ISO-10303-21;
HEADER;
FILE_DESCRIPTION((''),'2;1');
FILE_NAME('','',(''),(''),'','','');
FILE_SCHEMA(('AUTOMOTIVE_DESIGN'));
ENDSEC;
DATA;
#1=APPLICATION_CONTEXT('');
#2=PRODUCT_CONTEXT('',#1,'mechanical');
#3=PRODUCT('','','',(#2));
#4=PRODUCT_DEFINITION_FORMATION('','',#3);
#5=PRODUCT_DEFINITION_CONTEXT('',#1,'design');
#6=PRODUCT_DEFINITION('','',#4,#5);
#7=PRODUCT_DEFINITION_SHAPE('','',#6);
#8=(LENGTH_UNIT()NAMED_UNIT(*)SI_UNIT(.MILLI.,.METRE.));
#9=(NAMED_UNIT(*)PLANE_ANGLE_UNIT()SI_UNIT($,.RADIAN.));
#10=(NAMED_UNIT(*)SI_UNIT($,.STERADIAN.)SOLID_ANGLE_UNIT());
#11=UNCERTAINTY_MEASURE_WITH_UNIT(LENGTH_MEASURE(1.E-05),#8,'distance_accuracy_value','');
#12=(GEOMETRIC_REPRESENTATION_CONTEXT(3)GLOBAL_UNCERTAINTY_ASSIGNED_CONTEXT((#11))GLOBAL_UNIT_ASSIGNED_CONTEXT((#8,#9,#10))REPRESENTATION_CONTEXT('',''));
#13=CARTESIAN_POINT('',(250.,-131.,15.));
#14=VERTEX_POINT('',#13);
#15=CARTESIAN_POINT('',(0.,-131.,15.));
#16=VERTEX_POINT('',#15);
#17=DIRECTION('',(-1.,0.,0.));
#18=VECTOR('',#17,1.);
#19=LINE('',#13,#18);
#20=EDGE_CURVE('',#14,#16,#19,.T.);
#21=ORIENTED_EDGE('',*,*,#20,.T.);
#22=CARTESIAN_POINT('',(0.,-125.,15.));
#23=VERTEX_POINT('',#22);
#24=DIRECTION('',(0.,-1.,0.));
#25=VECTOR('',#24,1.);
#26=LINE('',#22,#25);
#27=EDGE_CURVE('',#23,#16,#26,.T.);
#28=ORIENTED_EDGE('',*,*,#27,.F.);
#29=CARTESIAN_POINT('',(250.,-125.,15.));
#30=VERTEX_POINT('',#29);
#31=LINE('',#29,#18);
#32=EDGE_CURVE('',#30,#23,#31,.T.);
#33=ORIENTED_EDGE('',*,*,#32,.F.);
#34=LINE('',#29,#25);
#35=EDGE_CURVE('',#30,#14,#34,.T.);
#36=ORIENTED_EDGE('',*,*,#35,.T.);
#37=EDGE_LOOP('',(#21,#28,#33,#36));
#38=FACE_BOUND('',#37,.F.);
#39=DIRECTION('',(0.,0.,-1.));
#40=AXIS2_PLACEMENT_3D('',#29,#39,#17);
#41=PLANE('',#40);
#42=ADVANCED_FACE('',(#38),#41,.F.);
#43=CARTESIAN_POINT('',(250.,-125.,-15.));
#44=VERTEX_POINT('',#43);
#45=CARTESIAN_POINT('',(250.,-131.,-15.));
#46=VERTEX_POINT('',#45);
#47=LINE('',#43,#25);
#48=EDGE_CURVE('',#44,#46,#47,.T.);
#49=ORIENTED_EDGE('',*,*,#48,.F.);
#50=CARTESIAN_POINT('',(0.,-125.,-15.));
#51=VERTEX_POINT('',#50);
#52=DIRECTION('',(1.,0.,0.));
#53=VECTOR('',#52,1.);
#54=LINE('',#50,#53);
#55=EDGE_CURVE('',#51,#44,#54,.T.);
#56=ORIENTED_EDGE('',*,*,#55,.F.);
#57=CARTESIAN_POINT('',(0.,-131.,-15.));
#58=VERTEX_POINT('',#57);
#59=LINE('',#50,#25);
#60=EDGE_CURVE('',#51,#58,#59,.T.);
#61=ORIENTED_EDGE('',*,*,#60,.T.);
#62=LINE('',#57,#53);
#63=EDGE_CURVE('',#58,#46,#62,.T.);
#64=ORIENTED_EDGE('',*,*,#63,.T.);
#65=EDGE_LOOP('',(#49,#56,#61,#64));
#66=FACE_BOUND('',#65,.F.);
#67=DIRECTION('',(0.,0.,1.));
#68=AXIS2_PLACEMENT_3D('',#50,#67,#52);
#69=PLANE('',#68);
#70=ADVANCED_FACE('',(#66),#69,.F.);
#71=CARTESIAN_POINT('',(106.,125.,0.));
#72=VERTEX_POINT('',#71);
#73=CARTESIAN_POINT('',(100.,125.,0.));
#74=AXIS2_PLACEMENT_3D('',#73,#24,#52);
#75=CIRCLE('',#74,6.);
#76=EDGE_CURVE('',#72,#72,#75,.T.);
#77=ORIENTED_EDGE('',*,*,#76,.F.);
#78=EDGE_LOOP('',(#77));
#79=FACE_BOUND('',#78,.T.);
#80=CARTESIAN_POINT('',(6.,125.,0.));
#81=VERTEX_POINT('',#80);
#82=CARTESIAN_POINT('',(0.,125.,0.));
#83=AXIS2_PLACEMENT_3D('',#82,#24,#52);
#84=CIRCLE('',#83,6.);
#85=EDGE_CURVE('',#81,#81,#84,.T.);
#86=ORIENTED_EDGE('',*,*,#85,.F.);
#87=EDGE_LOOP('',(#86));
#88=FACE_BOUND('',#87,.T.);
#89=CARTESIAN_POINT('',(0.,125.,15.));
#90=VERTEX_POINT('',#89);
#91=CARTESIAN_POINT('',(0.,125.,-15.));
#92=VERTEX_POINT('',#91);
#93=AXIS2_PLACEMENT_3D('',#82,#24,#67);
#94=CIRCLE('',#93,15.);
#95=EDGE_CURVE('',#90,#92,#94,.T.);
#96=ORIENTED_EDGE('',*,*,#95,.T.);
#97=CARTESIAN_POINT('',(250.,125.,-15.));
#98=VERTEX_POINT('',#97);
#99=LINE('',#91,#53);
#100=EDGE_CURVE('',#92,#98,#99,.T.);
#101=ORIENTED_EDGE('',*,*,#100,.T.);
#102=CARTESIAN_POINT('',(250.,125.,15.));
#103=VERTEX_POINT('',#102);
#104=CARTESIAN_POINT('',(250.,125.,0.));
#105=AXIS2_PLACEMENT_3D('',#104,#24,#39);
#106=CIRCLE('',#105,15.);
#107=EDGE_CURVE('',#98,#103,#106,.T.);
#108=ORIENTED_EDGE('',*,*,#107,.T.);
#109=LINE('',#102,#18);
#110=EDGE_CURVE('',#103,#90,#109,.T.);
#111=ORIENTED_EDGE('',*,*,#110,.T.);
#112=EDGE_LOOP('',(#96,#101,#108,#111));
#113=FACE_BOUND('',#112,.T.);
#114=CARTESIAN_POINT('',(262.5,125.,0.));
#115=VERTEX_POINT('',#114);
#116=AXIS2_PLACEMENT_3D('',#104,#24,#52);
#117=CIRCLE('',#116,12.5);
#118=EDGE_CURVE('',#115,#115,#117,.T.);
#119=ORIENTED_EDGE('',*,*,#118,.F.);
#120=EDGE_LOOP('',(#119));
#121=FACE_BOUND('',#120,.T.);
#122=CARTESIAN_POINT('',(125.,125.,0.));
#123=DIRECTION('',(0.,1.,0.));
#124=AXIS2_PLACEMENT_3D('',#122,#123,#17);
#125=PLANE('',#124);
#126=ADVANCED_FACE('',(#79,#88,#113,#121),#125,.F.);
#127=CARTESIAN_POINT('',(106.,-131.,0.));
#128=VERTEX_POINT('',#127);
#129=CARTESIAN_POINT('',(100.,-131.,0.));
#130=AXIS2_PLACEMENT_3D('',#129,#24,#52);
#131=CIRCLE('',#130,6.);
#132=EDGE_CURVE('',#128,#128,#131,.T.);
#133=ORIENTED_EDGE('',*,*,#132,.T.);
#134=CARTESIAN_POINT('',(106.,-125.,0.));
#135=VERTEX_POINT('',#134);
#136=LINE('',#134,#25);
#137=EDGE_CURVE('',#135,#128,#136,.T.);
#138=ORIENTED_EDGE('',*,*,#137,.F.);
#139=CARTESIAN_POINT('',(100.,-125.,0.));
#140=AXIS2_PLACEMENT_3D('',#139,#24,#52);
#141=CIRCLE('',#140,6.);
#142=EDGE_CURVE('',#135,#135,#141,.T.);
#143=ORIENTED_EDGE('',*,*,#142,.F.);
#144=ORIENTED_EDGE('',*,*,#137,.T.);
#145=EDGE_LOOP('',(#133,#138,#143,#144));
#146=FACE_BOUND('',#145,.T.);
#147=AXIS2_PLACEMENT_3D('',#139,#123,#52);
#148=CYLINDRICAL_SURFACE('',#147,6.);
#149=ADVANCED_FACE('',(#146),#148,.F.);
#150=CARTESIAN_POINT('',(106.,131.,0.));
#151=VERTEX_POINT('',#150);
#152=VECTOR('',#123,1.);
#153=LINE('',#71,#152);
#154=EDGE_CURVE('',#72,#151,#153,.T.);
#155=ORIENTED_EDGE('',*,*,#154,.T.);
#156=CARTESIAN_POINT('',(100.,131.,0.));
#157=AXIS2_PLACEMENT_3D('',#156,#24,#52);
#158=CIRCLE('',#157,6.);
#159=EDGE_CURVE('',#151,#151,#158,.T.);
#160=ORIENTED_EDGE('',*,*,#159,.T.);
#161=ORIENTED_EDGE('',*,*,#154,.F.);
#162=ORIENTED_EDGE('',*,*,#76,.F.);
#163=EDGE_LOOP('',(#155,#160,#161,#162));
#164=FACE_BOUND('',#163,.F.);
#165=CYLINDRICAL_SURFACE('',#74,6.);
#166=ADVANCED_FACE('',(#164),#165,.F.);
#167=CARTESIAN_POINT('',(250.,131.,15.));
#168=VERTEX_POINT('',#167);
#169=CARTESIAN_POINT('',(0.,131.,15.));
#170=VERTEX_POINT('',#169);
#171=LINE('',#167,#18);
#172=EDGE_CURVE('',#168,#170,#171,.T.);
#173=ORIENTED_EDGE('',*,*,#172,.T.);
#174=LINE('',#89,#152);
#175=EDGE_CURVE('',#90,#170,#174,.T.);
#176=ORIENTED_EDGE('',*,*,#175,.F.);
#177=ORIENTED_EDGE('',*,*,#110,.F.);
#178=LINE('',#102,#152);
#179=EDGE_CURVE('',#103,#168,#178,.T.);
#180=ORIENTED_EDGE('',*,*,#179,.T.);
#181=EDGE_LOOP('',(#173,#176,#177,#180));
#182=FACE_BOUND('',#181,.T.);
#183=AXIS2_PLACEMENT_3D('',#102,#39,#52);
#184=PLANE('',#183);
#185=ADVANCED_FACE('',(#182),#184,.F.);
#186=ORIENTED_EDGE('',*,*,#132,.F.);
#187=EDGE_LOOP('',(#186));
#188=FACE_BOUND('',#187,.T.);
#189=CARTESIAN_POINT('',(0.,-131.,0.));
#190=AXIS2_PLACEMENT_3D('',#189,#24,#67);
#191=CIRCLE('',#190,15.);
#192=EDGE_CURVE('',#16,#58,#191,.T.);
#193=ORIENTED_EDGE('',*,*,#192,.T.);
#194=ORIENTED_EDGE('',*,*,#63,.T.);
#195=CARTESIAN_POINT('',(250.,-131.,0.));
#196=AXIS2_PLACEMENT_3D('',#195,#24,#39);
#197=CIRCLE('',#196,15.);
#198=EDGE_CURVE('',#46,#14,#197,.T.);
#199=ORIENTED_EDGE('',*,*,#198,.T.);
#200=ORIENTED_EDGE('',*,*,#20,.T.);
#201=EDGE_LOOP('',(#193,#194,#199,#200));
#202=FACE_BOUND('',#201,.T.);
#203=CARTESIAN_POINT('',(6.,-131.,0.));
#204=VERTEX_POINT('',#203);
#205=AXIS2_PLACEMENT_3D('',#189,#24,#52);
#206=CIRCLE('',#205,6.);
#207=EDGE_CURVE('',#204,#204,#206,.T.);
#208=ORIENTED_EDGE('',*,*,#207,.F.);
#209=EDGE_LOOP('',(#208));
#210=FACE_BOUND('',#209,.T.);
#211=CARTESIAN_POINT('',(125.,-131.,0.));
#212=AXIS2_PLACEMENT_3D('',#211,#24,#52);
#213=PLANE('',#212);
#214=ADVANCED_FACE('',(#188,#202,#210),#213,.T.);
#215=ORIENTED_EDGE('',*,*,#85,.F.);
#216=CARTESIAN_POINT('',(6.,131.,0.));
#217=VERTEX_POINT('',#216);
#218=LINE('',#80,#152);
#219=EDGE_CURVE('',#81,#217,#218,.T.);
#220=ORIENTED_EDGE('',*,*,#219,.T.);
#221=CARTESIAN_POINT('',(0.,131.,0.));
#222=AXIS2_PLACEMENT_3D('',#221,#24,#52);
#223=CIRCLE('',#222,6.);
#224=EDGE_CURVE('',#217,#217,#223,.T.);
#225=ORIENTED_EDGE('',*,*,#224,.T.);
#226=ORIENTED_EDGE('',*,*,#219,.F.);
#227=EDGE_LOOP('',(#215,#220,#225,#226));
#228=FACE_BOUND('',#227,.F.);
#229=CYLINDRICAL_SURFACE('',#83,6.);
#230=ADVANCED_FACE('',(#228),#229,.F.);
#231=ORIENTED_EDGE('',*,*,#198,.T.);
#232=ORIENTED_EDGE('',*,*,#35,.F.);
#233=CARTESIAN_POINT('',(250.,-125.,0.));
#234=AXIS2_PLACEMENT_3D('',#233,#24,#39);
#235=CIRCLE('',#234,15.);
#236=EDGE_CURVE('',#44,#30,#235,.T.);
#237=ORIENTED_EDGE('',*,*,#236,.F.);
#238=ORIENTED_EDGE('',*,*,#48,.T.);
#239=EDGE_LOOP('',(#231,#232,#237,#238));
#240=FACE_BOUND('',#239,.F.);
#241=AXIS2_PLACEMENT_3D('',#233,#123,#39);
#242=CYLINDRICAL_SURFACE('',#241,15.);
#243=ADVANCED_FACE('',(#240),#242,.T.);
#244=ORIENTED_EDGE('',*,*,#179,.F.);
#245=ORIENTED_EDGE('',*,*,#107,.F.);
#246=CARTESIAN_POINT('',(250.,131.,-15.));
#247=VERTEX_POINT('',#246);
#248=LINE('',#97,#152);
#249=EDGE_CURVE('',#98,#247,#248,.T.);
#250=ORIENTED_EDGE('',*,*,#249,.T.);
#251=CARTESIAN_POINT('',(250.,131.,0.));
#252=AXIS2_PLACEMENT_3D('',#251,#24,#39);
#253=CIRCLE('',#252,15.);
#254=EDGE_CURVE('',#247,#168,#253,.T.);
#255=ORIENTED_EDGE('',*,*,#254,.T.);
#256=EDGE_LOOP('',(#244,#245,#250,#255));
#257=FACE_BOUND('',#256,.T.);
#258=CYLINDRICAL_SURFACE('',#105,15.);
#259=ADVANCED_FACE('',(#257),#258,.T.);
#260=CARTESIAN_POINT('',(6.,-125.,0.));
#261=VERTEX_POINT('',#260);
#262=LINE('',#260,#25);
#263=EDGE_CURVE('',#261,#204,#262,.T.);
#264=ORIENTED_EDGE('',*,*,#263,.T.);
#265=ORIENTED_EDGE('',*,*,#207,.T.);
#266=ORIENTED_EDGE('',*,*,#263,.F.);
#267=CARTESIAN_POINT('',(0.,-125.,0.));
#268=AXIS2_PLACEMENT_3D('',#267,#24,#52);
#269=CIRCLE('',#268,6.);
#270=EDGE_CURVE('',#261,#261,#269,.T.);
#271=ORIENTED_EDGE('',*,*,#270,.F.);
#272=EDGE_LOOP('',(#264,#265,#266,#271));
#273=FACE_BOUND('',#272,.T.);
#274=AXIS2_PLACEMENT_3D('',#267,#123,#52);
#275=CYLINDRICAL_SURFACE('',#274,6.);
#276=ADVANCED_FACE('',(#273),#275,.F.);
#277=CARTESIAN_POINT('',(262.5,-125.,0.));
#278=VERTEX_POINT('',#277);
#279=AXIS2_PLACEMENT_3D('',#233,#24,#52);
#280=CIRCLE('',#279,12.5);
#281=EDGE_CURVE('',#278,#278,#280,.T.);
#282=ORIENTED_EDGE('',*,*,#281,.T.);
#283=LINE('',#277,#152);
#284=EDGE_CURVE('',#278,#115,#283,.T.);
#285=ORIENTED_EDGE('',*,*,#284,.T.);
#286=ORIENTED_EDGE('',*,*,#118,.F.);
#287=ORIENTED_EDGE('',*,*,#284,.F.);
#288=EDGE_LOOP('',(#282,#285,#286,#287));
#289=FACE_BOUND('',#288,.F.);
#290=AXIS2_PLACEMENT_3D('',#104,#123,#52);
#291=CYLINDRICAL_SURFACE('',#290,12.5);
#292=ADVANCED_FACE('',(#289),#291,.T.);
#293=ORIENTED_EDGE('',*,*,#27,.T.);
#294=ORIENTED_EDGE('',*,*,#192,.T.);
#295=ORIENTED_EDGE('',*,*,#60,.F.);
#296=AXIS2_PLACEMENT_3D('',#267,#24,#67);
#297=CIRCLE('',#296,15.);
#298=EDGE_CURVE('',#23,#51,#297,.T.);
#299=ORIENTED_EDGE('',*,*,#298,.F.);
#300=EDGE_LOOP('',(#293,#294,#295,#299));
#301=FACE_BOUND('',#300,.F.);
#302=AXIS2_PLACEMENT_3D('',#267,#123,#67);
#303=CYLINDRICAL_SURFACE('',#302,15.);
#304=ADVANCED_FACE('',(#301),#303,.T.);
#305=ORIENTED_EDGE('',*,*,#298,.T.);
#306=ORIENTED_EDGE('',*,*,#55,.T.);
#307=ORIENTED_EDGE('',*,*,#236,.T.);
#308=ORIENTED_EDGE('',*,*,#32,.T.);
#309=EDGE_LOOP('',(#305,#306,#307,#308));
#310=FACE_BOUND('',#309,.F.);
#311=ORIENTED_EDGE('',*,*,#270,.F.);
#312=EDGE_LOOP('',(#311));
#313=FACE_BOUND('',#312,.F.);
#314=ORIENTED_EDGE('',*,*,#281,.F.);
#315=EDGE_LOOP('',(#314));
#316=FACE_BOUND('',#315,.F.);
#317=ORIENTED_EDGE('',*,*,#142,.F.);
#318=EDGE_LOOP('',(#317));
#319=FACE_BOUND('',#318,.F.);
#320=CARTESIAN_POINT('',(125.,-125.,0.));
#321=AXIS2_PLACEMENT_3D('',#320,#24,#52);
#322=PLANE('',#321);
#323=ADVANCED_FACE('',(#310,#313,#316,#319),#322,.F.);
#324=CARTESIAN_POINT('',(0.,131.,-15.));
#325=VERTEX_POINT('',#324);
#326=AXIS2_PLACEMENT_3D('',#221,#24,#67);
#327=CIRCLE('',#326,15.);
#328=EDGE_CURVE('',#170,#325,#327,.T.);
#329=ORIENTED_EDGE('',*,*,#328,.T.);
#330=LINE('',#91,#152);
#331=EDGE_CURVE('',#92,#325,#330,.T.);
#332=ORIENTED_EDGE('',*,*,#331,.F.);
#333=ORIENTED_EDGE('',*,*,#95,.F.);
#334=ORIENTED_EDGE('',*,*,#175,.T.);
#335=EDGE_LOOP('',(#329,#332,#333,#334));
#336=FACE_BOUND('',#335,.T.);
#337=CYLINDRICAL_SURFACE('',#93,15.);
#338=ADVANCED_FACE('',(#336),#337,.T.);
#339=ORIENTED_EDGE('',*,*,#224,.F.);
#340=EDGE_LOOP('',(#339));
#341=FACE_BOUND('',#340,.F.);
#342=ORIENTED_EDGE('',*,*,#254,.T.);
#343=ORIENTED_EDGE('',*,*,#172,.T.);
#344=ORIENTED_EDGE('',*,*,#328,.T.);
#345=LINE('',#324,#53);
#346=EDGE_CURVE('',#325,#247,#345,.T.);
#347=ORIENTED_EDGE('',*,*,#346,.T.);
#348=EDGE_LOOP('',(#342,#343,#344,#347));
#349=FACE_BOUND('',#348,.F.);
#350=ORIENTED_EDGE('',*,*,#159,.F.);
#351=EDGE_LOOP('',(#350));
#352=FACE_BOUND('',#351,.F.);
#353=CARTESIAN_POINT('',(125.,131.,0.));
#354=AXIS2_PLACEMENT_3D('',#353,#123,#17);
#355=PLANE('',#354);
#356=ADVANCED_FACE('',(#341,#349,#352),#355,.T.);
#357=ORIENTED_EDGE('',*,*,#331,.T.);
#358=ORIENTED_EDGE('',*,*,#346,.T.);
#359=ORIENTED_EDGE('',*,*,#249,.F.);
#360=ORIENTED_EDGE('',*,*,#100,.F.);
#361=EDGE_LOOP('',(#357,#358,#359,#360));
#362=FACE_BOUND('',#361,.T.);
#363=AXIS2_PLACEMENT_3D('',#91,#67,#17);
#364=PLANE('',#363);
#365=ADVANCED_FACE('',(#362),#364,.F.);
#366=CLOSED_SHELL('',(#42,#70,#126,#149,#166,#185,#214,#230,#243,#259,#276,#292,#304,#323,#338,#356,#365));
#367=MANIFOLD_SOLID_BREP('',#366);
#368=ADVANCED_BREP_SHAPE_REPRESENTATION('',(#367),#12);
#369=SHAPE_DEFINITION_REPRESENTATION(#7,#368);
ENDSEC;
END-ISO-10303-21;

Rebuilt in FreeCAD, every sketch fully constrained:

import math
import FreeCAD as App
import Part
import Sketcher

doc = App.newDocument("Part")
params = doc.addObject("Spreadsheet::Sheet", "Params")
for row, (alias, value) in enumerate([
    ("sketch1_diameter", "12 mm"),
    ("sketch1_radius", "15 mm"),
    ("sketch1_width", "250 mm"),
    ("pad1_length", "6 mm"),
    ("sketch2_diameter", "25 mm"),
    ("pad2_length", "125 mm"),
], start=1):
    params.set(f"A{row}", alias)
    params.set(f"B{row}", "=" + value)
    params.setAlias(f"B{row}", alias)

body = doc.addObject("PartDesign::Body", "Body")

sketch1 = body.newObject("Sketcher::SketchObject", "Sketch")
sketch1.AttachmentSupport = (doc.getObject("XZ_Plane"), [""])
sketch1.MapMode = "FlatFace"
sketch1.AttachmentOffset = App.Placement(App.Vector(0, 0, 125), App.Rotation())
sketch1.addGeometry(Part.LineSegment(App.Vector(250, 15, 0), App.Vector(0, 15, 0)), False)
sketch1.addGeometry(Part.ArcOfCircle(Part.Circle(App.Vector(0, 0, 0), App.Vector(0, 0, 1), 15), math.radians(90), math.radians(270)), False)
sketch1.addGeometry(Part.LineSegment(App.Vector(0, -15, 0), App.Vector(250, -15, 0)), False)
sketch1.addGeometry(Part.ArcOfCircle(Part.Circle(App.Vector(250, 0, 0), App.Vector(0, 0, 1), 15), math.radians(-90), math.radians(90)), False)
sketch1.addGeometry(Part.Circle(App.Vector(0, 0, 0), App.Vector(0, 0, 1), 6), False)
sketch1.addGeometry(Part.Circle(App.Vector(100, 0, 0), App.Vector(0, 0, 1), 6), False)
sketch1.addConstraint(Sketcher.Constraint("Tangent", 0, 2, 1, 1))
sketch1.addConstraint(Sketcher.Constraint("Tangent", 1, 2, 2, 1))
sketch1.addConstraint(Sketcher.Constraint("Tangent", 2, 2, 3, 1))
sketch1.addConstraint(Sketcher.Constraint("Tangent", 3, 2, 0, 1))
sketch1.addConstraint(Sketcher.Constraint("Horizontal", 0))
sketch1.addConstraint(Sketcher.Constraint("Horizontal", 2))
sketch1.addConstraint(Sketcher.Constraint("Coincident", 1, 3, -1, 1))
sketch1.addConstraint(Sketcher.Constraint("Coincident", 4, 3, -1, 1))
sketch1.addConstraint(Sketcher.Constraint("Equal", 4, 5))
sketch1.addConstraint(Sketcher.Constraint("PointOnObject", 5, 3, -1))
sketch1.addConstraint(Sketcher.Constraint("Diameter", 4, 12.0))
sketch1.addConstraint(Sketcher.Constraint("Radius", 1, 15.0))
sketch1.addConstraint(Sketcher.Constraint("DistanceX", 0, 2, 0, 1, 250.0))
sketch1.addConstraint(Sketcher.Constraint("DistanceX", -1, 1, 5, 3, 100.0))
sketch1.setExpression("Constraints[10]", "Params.sketch1_diameter")
sketch1.setExpression("Constraints[11]", "Params.sketch1_radius")
sketch1.setExpression("Constraints[12]", "Params.sketch1_width")
pad1 = body.newObject("PartDesign::Pad", "Pad")
pad1.Profile = sketch1
pad1.setExpression("Length", "Params.pad1_length")

sketch2 = body.newObject("Sketcher::SketchObject", "Sketch001")
sketch2.AttachmentSupport = (doc.getObject("XZ_Plane"), [""])
sketch2.MapMode = "FlatFace"
sketch2.AttachmentOffset = App.Placement(App.Vector(0, 0, 125), App.Rotation())
sketch2.addGeometry(Part.Circle(App.Vector(250, 0, 0), App.Vector(0, 0, 1), 12), False)
sketch2.addConstraint(Sketcher.Constraint("PointOnObject", 0, 3, -1))
sketch2.addConstraint(Sketcher.Constraint("Diameter", 0, 25.0))
sketch2.addConstraint(Sketcher.Constraint("DistanceX", -1, 1, 0, 3, 250.0))
sketch2.setExpression("Constraints[1]", "Params.sketch2_diameter")
pad2 = body.newObject("PartDesign::Pad", "Pad001")
pad2.Profile = sketch2
pad2.setExpression("Length", "Params.pad2_length")
pad2.Reversed = True
body2 = doc.addObject("PartDesign::Body", "Body001")
doc.recompute()

body2.BaseFeature = body
doc.recompute()

mirroring = doc.addObject("Part::Mirroring", "Mirroring")
mirroring.Source = body
mirroring.Base = App.Vector(0, 0, 0)
mirroring.Normal = App.Vector(0, -1, 0)
body3 = doc.addObject("PartDesign::Body", "Body002")
body3.BaseFeature = mirroring
boolean = body2.newObject("PartDesign::Boolean", "Boolean")
boolean.Type = "Fuse"
boolean.addObjects([body3])
doc.recompute()
mirroring.Visibility = False

doc.recompute()
